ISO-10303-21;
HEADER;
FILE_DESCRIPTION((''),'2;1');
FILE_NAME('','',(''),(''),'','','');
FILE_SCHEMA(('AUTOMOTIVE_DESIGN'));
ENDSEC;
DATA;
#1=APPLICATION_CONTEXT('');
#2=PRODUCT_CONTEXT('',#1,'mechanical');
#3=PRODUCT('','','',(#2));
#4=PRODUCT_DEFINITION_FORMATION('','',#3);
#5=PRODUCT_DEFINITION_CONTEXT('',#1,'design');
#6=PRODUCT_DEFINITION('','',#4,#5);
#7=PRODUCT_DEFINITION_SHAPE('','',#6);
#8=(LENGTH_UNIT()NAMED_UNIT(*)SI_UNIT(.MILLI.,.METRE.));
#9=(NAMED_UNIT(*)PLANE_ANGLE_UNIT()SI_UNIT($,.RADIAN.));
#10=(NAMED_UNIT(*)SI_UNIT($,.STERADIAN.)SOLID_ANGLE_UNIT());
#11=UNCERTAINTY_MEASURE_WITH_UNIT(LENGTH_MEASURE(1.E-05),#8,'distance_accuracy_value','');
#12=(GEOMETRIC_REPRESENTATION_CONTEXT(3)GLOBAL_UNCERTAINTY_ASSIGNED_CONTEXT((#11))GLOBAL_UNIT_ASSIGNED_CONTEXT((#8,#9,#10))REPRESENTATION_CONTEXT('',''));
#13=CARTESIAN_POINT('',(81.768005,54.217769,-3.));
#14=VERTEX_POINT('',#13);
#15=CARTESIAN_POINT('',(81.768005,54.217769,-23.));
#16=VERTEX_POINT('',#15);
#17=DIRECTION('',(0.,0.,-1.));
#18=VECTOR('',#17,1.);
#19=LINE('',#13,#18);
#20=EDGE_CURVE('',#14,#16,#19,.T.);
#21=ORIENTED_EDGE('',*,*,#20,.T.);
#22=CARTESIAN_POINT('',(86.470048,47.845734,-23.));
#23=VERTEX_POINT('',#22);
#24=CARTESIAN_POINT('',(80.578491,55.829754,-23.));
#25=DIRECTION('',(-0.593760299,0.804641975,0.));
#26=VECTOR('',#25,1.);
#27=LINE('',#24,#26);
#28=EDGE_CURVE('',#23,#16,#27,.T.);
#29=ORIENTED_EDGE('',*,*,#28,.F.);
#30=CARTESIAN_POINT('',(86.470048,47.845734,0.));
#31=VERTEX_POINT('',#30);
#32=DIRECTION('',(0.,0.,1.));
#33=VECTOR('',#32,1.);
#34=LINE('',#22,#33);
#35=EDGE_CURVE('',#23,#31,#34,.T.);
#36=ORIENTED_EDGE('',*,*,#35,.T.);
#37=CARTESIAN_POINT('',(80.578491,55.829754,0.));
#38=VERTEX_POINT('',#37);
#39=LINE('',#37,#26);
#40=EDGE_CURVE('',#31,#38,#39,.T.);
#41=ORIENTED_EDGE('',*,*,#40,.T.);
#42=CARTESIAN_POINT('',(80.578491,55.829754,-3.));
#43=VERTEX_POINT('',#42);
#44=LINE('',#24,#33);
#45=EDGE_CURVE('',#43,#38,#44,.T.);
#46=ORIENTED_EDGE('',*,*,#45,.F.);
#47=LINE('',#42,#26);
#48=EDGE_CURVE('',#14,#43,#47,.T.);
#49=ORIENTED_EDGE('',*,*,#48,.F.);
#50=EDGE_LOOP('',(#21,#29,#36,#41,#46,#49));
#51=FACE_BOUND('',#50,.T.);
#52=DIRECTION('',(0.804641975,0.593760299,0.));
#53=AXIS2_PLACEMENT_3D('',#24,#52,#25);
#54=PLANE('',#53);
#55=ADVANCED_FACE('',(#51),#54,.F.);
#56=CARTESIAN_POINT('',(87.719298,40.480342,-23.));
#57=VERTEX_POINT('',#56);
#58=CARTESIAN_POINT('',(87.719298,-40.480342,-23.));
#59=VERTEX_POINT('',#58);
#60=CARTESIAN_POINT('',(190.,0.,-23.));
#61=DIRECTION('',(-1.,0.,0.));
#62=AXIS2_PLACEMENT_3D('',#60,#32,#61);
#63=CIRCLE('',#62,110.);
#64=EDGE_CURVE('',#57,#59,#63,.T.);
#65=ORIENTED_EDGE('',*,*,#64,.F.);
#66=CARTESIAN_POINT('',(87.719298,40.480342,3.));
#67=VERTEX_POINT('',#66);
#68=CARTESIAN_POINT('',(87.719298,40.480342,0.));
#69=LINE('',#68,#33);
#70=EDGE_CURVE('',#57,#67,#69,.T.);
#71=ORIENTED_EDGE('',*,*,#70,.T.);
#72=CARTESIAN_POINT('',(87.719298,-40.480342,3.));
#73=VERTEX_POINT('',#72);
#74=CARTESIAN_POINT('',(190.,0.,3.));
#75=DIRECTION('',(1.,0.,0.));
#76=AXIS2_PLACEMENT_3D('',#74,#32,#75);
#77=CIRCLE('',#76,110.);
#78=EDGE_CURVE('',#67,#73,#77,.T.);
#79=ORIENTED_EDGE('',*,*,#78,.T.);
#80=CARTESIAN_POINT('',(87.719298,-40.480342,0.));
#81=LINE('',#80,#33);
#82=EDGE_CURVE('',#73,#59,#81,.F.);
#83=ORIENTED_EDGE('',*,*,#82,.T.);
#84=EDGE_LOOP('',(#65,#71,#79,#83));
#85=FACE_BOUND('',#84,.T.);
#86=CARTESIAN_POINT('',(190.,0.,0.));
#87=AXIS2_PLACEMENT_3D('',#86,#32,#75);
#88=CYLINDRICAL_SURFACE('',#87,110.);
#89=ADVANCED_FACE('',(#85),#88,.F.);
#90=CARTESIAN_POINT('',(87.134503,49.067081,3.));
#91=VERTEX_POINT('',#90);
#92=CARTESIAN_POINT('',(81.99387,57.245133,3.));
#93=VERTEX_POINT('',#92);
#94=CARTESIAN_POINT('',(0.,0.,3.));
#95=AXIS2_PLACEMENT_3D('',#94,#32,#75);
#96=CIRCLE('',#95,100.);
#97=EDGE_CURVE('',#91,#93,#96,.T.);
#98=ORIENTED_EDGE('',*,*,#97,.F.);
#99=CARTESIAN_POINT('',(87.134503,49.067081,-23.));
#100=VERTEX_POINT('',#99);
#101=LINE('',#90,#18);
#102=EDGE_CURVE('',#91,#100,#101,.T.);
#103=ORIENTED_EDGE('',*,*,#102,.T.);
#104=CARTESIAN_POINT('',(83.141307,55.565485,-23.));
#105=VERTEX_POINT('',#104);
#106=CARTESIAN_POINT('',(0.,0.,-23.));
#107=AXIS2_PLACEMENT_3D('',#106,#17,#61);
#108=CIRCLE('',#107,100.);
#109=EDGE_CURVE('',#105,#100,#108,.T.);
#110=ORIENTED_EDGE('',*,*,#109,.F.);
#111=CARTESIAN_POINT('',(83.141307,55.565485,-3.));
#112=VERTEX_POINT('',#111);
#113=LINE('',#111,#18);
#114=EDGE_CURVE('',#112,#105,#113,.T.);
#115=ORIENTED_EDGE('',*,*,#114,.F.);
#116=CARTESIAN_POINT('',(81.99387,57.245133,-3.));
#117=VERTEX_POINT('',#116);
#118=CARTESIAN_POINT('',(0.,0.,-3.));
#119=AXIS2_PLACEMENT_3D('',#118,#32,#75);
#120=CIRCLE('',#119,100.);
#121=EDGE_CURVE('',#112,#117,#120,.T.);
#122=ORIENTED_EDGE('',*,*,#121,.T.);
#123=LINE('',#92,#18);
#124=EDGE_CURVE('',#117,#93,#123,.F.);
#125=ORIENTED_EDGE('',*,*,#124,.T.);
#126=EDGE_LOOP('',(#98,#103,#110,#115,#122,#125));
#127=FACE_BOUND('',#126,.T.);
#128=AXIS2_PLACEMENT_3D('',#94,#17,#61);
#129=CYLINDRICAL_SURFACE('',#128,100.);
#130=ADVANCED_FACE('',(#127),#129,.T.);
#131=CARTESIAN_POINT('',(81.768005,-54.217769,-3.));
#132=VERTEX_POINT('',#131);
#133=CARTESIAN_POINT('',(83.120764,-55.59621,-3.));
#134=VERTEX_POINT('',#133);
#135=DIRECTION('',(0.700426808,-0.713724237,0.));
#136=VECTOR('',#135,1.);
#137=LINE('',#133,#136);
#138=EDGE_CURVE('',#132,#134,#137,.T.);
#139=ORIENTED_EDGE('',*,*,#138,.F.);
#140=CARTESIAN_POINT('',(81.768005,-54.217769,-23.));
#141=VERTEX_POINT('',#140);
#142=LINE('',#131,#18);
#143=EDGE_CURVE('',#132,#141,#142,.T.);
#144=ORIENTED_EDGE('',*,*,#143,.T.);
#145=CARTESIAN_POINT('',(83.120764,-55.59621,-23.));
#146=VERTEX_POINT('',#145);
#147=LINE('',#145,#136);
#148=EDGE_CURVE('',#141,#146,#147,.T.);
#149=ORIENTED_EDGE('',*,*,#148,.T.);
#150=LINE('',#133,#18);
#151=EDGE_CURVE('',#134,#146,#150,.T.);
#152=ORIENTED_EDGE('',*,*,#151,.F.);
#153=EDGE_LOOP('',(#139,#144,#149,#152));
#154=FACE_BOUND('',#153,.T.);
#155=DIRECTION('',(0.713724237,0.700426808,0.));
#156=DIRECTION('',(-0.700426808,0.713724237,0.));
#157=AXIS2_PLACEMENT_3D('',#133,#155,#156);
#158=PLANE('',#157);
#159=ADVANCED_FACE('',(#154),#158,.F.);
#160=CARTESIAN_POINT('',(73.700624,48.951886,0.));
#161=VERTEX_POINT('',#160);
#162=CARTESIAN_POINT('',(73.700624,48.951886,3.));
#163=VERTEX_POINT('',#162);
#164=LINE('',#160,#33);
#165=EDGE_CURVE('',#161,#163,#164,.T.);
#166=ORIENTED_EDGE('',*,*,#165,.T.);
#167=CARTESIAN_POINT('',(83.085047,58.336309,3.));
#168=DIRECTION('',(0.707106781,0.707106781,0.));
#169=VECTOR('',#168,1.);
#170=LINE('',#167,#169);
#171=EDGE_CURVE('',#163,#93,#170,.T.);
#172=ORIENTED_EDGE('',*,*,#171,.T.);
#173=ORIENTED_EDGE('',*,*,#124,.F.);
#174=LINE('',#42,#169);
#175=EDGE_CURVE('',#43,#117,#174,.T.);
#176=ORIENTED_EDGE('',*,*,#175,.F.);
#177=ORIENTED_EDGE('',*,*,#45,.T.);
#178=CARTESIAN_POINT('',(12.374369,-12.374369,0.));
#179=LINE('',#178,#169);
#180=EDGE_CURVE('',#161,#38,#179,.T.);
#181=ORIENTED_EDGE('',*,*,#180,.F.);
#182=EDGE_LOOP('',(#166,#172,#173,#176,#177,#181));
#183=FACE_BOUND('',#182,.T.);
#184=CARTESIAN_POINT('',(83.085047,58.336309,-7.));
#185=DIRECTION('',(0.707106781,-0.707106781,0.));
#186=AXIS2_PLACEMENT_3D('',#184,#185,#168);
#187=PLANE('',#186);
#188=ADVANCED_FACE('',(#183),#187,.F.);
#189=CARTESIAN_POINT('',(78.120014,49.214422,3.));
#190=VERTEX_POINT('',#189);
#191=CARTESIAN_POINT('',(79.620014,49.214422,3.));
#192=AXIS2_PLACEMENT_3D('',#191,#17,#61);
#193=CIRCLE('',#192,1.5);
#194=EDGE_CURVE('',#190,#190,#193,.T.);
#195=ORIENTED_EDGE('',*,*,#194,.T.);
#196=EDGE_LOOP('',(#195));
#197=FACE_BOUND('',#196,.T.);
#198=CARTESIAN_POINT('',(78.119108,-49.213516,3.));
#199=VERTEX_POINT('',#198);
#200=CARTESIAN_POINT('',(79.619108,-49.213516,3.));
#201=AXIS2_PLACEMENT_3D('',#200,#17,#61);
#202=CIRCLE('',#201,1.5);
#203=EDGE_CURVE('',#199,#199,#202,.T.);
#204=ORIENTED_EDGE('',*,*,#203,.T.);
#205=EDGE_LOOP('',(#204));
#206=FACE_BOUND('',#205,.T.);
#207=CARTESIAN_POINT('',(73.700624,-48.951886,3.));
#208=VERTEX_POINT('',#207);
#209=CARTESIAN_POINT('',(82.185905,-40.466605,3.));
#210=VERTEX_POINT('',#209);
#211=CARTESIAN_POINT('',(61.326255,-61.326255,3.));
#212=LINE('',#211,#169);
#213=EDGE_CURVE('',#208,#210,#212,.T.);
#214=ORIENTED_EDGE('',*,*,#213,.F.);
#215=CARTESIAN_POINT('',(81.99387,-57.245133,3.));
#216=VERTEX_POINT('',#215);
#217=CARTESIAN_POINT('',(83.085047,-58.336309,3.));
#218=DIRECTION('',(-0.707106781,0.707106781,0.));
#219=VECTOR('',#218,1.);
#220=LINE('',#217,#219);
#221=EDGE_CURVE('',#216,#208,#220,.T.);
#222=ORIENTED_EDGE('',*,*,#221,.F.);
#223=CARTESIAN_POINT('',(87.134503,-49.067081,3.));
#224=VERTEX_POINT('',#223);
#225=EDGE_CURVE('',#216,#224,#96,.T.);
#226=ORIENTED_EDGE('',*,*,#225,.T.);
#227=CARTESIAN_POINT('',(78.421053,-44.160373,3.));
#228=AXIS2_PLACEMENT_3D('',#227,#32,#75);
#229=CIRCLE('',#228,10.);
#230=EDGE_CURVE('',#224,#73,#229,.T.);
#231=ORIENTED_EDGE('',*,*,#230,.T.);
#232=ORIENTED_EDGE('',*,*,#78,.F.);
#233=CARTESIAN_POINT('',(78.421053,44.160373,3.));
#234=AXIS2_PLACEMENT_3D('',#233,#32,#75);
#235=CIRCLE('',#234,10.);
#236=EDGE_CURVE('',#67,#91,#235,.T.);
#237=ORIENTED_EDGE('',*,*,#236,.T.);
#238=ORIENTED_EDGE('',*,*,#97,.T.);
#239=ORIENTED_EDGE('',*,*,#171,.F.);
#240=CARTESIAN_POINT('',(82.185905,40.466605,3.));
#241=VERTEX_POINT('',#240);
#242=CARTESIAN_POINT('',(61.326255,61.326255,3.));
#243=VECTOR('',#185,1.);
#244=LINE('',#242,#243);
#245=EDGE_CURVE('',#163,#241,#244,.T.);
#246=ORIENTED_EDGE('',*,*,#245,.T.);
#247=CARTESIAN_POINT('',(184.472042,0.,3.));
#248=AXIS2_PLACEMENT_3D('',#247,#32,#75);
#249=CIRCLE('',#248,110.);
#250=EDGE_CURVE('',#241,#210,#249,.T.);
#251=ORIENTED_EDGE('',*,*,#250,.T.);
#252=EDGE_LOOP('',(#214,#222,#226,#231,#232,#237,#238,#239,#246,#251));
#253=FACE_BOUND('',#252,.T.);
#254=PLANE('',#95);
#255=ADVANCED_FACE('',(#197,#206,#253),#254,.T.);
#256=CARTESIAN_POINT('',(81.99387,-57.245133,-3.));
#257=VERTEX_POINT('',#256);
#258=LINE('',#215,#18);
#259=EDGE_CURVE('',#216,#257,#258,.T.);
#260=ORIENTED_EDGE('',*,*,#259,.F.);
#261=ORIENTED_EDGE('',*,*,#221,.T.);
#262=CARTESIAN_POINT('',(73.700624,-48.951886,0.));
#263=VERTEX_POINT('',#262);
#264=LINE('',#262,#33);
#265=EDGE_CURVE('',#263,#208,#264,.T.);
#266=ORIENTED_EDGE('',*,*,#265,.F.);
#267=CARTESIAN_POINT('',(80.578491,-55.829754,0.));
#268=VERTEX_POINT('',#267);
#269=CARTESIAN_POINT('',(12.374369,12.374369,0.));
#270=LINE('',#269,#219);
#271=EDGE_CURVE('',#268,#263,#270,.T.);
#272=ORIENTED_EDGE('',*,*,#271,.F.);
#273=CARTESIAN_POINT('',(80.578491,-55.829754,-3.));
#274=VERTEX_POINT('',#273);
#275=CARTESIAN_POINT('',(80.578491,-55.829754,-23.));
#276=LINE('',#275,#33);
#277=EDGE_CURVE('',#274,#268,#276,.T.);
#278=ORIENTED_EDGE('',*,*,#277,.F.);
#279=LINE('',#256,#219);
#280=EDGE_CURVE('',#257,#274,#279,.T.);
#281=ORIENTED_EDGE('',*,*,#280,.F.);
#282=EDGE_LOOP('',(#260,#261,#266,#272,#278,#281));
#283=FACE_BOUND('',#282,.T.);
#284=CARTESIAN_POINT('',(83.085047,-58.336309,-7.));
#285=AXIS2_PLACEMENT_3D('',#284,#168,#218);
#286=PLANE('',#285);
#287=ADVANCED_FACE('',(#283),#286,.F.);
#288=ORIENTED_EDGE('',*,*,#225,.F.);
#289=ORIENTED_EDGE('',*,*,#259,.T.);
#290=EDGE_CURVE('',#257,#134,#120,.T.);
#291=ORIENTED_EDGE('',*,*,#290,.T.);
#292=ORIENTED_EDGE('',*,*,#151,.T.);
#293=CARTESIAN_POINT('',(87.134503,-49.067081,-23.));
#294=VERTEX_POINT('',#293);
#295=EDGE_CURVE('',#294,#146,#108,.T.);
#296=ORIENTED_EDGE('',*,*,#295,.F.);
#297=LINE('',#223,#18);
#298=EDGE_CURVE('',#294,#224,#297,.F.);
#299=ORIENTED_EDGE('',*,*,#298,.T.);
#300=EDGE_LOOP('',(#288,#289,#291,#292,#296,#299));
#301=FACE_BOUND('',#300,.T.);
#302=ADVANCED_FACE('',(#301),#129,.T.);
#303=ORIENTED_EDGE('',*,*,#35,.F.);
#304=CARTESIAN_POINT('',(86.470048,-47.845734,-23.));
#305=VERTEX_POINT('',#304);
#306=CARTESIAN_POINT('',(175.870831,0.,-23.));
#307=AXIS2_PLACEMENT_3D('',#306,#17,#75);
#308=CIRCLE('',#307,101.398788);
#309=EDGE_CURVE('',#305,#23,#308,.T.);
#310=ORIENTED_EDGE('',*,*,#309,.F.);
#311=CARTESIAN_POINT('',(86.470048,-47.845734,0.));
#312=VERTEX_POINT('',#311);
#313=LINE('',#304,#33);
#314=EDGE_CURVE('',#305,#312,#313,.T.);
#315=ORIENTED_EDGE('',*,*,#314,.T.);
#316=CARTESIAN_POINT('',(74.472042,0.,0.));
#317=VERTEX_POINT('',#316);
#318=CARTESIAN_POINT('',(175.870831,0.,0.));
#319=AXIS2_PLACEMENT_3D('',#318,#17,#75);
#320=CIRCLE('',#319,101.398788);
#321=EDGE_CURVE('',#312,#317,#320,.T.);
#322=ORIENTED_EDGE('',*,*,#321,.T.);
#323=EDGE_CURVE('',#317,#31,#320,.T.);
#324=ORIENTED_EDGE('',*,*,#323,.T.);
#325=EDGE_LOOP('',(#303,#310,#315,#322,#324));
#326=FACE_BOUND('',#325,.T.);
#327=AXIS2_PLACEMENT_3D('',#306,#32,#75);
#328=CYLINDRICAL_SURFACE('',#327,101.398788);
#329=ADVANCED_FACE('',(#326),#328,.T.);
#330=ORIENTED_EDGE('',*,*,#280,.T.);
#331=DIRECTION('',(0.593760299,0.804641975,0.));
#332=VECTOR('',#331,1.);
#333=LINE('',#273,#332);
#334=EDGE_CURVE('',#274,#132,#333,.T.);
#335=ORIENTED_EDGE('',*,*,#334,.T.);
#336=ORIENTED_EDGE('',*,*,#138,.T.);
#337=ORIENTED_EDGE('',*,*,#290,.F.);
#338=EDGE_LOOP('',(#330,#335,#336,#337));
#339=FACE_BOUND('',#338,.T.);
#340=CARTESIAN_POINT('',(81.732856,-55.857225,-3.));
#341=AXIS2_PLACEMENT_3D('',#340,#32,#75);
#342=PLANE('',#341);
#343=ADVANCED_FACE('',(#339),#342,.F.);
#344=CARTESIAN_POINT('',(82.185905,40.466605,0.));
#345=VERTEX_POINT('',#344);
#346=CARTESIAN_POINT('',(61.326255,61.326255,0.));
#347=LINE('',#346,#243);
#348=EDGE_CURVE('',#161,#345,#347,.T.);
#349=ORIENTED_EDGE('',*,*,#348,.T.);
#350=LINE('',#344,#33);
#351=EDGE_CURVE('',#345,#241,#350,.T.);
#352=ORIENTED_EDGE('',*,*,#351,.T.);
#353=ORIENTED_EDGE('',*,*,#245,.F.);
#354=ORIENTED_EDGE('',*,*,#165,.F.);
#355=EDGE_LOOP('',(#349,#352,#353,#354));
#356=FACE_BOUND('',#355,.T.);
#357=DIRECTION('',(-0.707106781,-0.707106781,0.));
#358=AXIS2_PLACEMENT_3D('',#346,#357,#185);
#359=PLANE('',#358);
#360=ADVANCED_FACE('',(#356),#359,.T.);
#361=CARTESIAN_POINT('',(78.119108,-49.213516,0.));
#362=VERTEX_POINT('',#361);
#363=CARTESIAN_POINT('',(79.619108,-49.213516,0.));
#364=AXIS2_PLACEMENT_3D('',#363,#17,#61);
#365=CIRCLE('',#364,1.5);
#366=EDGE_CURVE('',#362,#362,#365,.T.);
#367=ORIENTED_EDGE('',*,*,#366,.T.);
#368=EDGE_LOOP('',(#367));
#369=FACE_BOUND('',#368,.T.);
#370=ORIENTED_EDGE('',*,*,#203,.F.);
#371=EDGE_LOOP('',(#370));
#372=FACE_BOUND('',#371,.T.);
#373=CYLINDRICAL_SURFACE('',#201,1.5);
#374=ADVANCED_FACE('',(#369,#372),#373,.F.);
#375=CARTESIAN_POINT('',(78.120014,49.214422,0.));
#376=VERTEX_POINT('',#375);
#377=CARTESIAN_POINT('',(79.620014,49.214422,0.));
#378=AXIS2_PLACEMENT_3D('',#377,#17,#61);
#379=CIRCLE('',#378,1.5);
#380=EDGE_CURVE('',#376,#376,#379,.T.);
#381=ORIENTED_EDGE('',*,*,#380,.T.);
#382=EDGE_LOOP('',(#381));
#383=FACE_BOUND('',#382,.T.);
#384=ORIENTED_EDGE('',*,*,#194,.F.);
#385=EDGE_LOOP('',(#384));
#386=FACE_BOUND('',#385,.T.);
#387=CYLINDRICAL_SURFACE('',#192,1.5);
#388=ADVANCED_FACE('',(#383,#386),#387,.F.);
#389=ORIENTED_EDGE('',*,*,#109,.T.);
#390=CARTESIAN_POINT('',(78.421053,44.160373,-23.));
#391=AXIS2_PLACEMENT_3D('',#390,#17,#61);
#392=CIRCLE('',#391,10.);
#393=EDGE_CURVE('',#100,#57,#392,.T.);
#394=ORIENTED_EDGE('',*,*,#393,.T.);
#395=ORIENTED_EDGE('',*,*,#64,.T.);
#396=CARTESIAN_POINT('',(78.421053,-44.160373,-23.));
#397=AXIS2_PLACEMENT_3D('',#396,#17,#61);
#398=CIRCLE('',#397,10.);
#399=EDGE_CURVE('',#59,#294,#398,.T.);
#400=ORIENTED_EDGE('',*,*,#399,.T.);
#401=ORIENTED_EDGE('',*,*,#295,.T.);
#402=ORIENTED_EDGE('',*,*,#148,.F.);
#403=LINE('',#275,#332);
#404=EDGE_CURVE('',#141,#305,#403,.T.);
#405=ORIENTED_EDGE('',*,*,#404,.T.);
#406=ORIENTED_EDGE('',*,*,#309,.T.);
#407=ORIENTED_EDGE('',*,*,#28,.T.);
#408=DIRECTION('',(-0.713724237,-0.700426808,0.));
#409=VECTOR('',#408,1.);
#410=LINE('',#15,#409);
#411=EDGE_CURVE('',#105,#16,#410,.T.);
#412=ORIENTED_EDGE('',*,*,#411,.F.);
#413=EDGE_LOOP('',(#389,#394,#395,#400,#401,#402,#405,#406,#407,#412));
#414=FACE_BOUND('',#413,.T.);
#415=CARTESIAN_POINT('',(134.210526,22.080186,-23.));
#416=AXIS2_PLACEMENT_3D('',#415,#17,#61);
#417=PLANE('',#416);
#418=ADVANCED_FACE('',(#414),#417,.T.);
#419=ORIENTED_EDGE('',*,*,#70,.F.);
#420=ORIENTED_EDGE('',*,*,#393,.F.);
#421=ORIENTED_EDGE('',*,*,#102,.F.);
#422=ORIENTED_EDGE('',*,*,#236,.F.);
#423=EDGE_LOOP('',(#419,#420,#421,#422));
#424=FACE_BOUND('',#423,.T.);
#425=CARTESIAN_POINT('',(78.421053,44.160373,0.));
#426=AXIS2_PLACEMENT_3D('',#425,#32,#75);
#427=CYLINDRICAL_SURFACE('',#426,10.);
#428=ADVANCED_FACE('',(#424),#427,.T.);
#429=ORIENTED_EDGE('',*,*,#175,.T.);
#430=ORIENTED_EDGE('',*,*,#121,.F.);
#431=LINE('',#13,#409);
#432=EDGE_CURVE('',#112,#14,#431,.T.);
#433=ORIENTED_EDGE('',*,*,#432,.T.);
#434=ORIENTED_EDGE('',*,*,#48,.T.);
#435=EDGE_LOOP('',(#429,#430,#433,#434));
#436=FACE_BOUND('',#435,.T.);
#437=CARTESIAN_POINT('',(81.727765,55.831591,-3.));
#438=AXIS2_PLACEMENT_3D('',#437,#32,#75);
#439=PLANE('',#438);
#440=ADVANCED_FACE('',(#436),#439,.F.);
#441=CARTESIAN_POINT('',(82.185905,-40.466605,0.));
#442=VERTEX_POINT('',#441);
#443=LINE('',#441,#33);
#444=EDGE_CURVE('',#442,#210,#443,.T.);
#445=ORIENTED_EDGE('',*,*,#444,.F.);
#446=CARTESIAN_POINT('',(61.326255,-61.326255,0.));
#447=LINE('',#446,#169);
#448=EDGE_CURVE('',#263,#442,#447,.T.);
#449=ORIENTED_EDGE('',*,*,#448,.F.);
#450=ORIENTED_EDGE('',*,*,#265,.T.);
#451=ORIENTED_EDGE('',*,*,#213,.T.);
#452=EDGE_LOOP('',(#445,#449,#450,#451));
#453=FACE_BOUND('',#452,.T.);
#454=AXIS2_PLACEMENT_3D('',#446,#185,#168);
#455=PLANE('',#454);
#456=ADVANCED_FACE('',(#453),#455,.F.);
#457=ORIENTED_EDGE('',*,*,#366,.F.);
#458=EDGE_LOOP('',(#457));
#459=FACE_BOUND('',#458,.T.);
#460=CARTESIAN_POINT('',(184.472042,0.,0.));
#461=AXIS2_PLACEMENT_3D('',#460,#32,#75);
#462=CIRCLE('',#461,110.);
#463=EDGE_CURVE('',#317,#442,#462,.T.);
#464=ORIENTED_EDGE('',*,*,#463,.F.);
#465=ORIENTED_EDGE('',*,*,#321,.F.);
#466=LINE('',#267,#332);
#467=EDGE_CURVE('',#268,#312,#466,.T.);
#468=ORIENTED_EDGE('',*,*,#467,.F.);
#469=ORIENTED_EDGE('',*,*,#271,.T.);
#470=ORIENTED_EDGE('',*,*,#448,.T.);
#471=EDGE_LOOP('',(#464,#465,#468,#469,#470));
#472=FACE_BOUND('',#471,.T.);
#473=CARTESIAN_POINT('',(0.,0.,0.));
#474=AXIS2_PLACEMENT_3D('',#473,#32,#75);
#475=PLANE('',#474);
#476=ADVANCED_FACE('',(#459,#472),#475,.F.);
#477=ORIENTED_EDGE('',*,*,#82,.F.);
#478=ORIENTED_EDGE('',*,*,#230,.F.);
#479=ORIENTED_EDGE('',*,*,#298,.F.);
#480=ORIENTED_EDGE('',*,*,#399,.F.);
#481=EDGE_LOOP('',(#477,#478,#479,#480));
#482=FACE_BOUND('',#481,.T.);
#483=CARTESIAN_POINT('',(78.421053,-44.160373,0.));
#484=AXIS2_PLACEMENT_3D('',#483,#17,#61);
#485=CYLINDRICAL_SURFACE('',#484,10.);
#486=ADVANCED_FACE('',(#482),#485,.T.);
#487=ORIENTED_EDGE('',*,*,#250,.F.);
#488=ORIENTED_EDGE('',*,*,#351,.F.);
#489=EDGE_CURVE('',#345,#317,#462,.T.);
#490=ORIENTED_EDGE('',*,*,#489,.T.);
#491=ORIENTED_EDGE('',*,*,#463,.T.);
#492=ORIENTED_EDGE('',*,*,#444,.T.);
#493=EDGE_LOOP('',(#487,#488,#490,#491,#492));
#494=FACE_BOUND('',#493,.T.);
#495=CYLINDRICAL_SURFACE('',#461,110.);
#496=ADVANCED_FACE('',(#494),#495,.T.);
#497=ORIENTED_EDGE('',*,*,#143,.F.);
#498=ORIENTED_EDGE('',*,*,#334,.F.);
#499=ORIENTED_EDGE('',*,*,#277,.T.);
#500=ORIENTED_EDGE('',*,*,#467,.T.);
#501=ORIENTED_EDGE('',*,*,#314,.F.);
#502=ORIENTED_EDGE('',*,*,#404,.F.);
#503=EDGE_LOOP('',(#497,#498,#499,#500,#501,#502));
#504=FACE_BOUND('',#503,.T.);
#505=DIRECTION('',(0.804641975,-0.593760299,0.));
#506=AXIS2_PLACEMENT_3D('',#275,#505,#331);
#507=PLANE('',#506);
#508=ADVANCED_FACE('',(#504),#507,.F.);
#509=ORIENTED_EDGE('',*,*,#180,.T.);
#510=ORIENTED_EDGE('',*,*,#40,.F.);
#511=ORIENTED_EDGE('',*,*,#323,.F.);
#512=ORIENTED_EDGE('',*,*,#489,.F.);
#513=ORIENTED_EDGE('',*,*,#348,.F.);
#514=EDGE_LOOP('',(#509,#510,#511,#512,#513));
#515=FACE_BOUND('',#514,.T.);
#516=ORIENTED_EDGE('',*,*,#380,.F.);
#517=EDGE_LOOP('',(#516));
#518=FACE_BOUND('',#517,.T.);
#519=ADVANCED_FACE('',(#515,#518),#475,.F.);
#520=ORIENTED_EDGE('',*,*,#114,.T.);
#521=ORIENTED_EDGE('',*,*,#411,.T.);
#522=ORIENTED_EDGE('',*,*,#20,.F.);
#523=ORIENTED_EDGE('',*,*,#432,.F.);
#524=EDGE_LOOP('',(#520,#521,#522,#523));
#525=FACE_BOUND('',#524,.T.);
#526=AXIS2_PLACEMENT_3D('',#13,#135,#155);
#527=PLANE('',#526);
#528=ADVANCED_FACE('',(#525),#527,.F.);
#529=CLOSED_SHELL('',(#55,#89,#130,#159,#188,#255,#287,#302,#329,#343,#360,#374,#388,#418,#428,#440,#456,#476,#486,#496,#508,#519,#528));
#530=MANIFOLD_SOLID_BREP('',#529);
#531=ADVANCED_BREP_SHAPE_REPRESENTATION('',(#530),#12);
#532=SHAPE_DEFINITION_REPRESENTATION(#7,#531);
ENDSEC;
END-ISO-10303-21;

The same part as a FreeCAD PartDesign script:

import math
import FreeCAD as App
import Part
import Sketcher
from FreeCAD import Vector


def edges_at(feature, points):
    """Names of the edges that pass closest to the given points."""
    edges = feature.Shape.Edges
    near = lambda p: min(range(len(edges)), key=lambda i: edges[i].distToShape(Part.Vertex(*p))[0])
    return sorted({f"Edge{near(p) + 1}" for p in points})

doc = App.newDocument("Part")
body = doc.addObject("PartDesign::Body", "Body")

# Sketch on XY plane
sketch1 = body.newObject("Sketcher::SketchObject", "Sketch")
sketch1.AttachmentSupport = (doc.getObject("XY_Plane"), [""])
sketch1.MapMode = "FlatFace"
sketch1.addGeometry(Part.Circle(Vector(0, 0, 0), Vector(0, 0, 1), 100), False)
sketch1.addConstraint([
    Sketcher.Constraint("Coincident", 0, 3, -1, 1),
    Sketcher.Constraint("Diameter", 0, 200.0),
])
pad1 = body.newObject("PartDesign::Pad", "Pad")
pad1.Profile = sketch1
pad1.Length = 3

# Sketch on XY plane
sketch2 = body.newObject("Sketcher::SketchObject", "Sketch001")
sketch2.AttachmentSupport = (doc.getObject("XY_Plane"), [""])
sketch2.MapMode = "FlatFace"
sketch2.AttachmentOffset = App.Placement(Vector(0, 0, 3), App.Rotation())
sketch2.addGeometry(Part.Circle(Vector(190, 0, 0), Vector(0, 0, 1), 110), False)
sketch2.addConstraint([
    Sketcher.Constraint("PointOnObject", 0, 3, -1),
    Sketcher.Constraint("Diameter", 0, 220.0),
    Sketcher.Constraint("DistanceX", -1, 1, 0, 3, 190.0),
])
pocket1 = body.newObject("PartDesign::Pocket", "Pocket")
pocket1.Profile = sketch2
pocket1.Length = 3
doc.recompute()

fillet = body.newObject("PartDesign::Fillet", "Fillet")
fillet.Base = (pocket1, edges_at(pocket1, [(89.474, -44.659, 1.5), (89.474, 44.659, 1.5)]))
fillet.Radius = 10

# Sketch on XY plane
sketch3 = body.newObject("Sketcher::SketchObject", "Sketch002")
sketch3.AttachmentSupport = (doc.getObject("XY_Plane"), [""])
sketch3.MapMode = "FlatFace"
sketch3.AttachmentOffset = App.Placement(Vector(0, 0, 3), App.Rotation())
sketch3.addGeometry([
    Part.LineSegment(Vector(-83, -58, 0), Vector(-58, -83, 0)),  # 0
    Part.LineSegment(Vector(-58, -83, 0), Vector(-41, -65, 0)),  # 1
    Part.LineSegment(Vector(-41, -65, 0), Vector(-65, -41, 0)),  # 2
    Part.LineSegment(Vector(-65, -41, 0), Vector(-83, -58, 0)),  # 3
    Part.LineSegment(Vector(-58, 83, 0), Vector(-83, 58, 0)),  # 4
    Part.LineSegment(Vector(-83, 58, 0), Vector(-65, 41, 0)),  # 5
    Part.LineSegment(Vector(-65, 41, 0), Vector(-41, 65, 0)),  # 6
    Part.LineSegment(Vector(-41, 65, 0), Vector(-58, 83, 0)),  # 7
    Part.LineSegment(Vector(58, -83, 0), Vector(83, -58, 0)),  # 8
    Part.LineSegment(Vector(83, -58, 0), Vector(65, -41, 0)),  # 9
    Part.LineSegment(Vector(65, -41, 0), Vector(41, -65, 0)),  # 10
    Part.LineSegment(Vector(41, -65, 0), Vector(58, -83, 0)),  # 11
    Part.LineSegment(Vector(83, 58, 0), Vector(58, 83, 0)),  # 12
    Part.LineSegment(Vector(58, 83, 0), Vector(41, 65, 0)),  # 13
    Part.LineSegment(Vector(41, 65, 0), Vector(65, 41, 0)),  # 14
    Part.LineSegment(Vector(65, 41, 0), Vector(83, 58, 0)),  # 15
], False)
sketch3.addConstraint([
    Sketcher.Constraint("Coincident", 0, 2, 1, 1),
    Sketcher.Constraint("Coincident", 1, 2, 2, 1),
    Sketcher.Constraint("Coincident", 2, 2, 3, 1),
    Sketcher.Constraint("Coincident", 3, 2, 0, 1),
    Sketcher.Constraint("Coincident", 4, 2, 5, 1),
    Sketcher.Constraint("Coincident", 5, 2, 6, 1),
    Sketcher.Constraint("Coincident", 6, 2, 7, 1),
    Sketcher.Constraint("Coincident", 7, 2, 4, 1),
    Sketcher.Constraint("Coincident", 8, 2, 9, 1),
    Sketcher.Constraint("Coincident", 9, 2, 10, 1),
    Sketcher.Constraint("Coincident", 10, 2, 11, 1),
    Sketcher.Constraint("Coincident", 11, 2, 8, 1),
    Sketcher.Constraint("Coincident", 12, 2, 13, 1),
    Sketcher.Constraint("Coincident", 13, 2, 14, 1),
    Sketcher.Constraint("Coincident", 14, 2, 15, 1),
    Sketcher.Constraint("Coincident", 15, 2, 12, 1),
    Sketcher.Constraint("Symmetric", 4, 2, 8, 2, -1, 1),
    Sketcher.Constraint("Symmetric", 5, 2, 9, 2, -1, 1),
    Sketcher.Constraint("Symmetric", 6, 2, 10, 2, -1, 1),
    Sketcher.Constraint("Symmetric", 7, 2, 11, 2, -1, 1),
    Sketcher.Constraint("Symmetric", 0, 2, 12, 2, -1, 1),
    Sketcher.Constraint("Symmetric", 1, 2, 13, 2, -1, 1),
    Sketcher.Constraint("Symmetric", 2, 2, 14, 2, -1, 1),
    Sketcher.Constraint("Symmetric", 3, 2, 15, 2, -1, 1),
    Sketcher.Constraint("Symmetric", 3, 2, 8, 2, -2),
    Sketcher.Constraint("Symmetric", 2, 2, 9, 2, -2),
    Sketcher.Constraint("Symmetric", 1, 2, 10, 2, -2),
    Sketcher.Constraint("Symmetric", 0, 2, 11, 2, -2),
    Sketcher.Constraint("Perpendicular", 0, 1),
    Sketcher.Constraint("Perpendicular", 1, 2),
    Sketcher.Constraint("Perpendicular", 2, 3),
    Sketcher.Constraint("Parallel", 3, 4),
    Sketcher.Constraint("Distance", 0, 35.0),
    Sketcher.Constraint("Distance", 1, 25.0),
    Sketcher.Constraint("DistanceX", 0, 2, -1, 1, 58.336309),
    Sketcher.Constraint("DistanceY", 2, 2, -1, 1, 40.65864),
])
pocket2 = body.newObject("PartDesign::Pocket", "Pocket001")
pocket2.Profile = sketch3
pocket2.Length = 10

# Sketch on XY plane
sketch4 = body.newObject("Sketcher::SketchObject", "Sketch003")
sketch4.AttachmentSupport = (doc.getObject("XY_Plane"), [""])
sketch4.MapMode = "FlatFace"
sketch4.AttachmentOffset = App.Placement(Vector(0, 0, 3), App.Rotation())
sketch4.addGeometry([
    Part.Circle(Vector(-63.6, -36.8, 0), Vector(0, 0, 1), 1.5),  # 0
    Part.Circle(Vector(-36.8, -63.6, 0), Vector(0, 0, 1), 1.5),  # 1
    Part.Circle(Vector(-47.7, -20.9, 0), Vector(0, 0, 1), 1.5),  # 2
    Part.Circle(Vector(-20.9, -47.7, 0), Vector(0, 0, 1), 1.5),  # 3
    Part.Circle(Vector(47.7, 20.9, 0), Vector(0, 0, 1), 1.5),  # 4
    Part.Circle(Vector(20.9, 47.7, 0), Vector(0, 0, 1), 1.5),  # 5
    Part.Circle(Vector(63.6, 36.8, 0), Vector(0, 0, 1), 1.5),  # 6
    Part.Circle(Vector(36.8, 63.6, 0), Vector(0, 0, 1), 1.5),  # 7
    Part.Circle(Vector(20.9, -47.7, 0), Vector(0, 0, 1), 1.5),  # 8
    Part.Circle(Vector(47.7, -20.9, 0), Vector(0, 0, 1), 1.5),  # 9
    Part.Circle(Vector(63.6, -36.8, 0), Vector(0, 0, 1), 1.5),  # 10
    Part.Circle(Vector(36.8, -63.6, 0), Vector(0, 0, 1), 1.5),  # 11
    Part.Circle(Vector(-63.6, 36.8, 0), Vector(0, 0, 1), 1.5),  # 12
    Part.Circle(Vector(-36.8, 63.6, 0), Vector(0, 0, 1), 1.5),  # 13
    Part.Circle(Vector(-20.9, 47.7, 0), Vector(0, 0, 1), 1.5),  # 14
    Part.Circle(Vector(-47.7, 20.9, 0), Vector(0, 0, 1), 1.5),  # 15
], False)
sketch4.addConstraint([
    Sketcher.Constraint("Equal", 0, 1),
    Sketcher.Constraint("Equal", 1, 2),
    Sketcher.Constraint("Equal", 2, 3),
    Sketcher.Constraint("Equal", 3, 4),
    Sketcher.Constraint("Equal", 4, 5),
    Sketcher.Constraint("Equal", 5, 6),
    Sketcher.Constraint("Equal", 6, 7),
    Sketcher.Constraint("Equal", 7, 8),
    Sketcher.Constraint("Equal", 8, 9),
    Sketcher.Constraint("Equal", 9, 10),
    Sketcher.Constraint("Equal", 10, 11),
    Sketcher.Constraint("Equal", 11, 12),
    Sketcher.Constraint("Equal", 12, 13),
    Sketcher.Constraint("Equal", 13, 14),
    Sketcher.Constraint("Equal", 14, 15),
    Sketcher.Constraint("Symmetric", 2, 3, 4, 3, -1, 1),
    Sketcher.Constraint("Symmetric", 3, 3, 5, 3, -1, 1),
    Sketcher.Constraint("Symmetric", 0, 3, 6, 3, -1, 1),
    Sketcher.Constraint("Symmetric", 1, 3, 7, 3, -1, 1),
    Sketcher.Constraint("Symmetric", 10, 3, 12, 3, -1, 1),
    Sketcher.Constraint("Symmetric", 11, 3, 13, 3, -1, 1),
    Sketcher.Constraint("Symmetric", 8, 3, 14, 3, -1, 1),
    Sketcher.Constraint("Symmetric", 9, 3, 15, 3, -1, 1),
    Sketcher.Constraint("Symmetric", 3, 3, 8, 3, -2),
    Sketcher.Constraint("Symmetric", 2, 3, 9, 3, -2),
    Sketcher.Constraint("Symmetric", 0, 3, 10, 3, -2),
    Sketcher.Constraint("Symmetric", 1, 3, 11, 3, -2),
    Sketcher.Constraint("Diameter", 0, 3.0),
    Sketcher.Constraint("DistanceY", 0, 3, -1, 1, 36.804908),
    Sketcher.Constraint("DistanceX", 2, 3, -1, 1, 47.666068),
    Sketcher.Constraint("DistanceY", 2, 3, -1, 1, 20.866721),
    Sketcher.Constraint("DistanceX", 3, 3, -1, 1, 20.866721),
    Sketcher.Constraint("DistanceY", 3, 3, -1, 1, 47.666068),
    Sketcher.Constraint("DistanceX", -1, 1, 7, 3, 36.804908),
    Sketcher.Constraint("DistanceX", 0, 3, -1, 1, 63.604255),
    Sketcher.Constraint("DistanceY", 1, 3, -1, 1, 63.604255),
])
pocket3 = body.newObject("PartDesign::Pocket", "Pocket002")
pocket3.Profile = sketch4
pocket3.Type = "ThroughAll"

# Sketch on XY plane
sketch5 = body.newObject("Sketcher::SketchObject", "Sketch004")
sketch5.AttachmentSupport = (doc.getObject("XY_Plane"), [""])
sketch5.MapMode = "FlatFace"
sketch5.AttachmentOffset = App.Placement(Vector(0, 0, 3), App.Rotation())
sketch5.addGeometry([
    Part.Circle(Vector(71.9, -4, 0), Vector(0, 0, 1), 1.5),  # 0
    Part.Circle(Vector(36, 4, 0), Vector(0, 0, 1), 1.5),  # 1
    Part.Circle(Vector(72, 4, 0), Vector(0, 0, 1), 1.5),  # 2
    Part.Circle(Vector(35.9, -4, 0), Vector(0, 0, 1), 1.5),  # 3
    Part.Circle(Vector(-91.2, 4, 0), Vector(0, 0, 1), 1.5),  # 4
    Part.Circle(Vector(-91.2, -4, 0), Vector(0, 0, 1), 1.5),  # 5
    Part.Circle(Vector(-55.2, 4, 0), Vector(0, 0, 1), 1.5),  # 6
    Part.Circle(Vector(-55.2, -4, 0), Vector(0, 0, 1), 1.5),  # 7
    Part.Circle(Vector(-4, 85, 0), Vector(0, 0, 1), 1.5),  # 8
    Part.Circle(Vector(4, 85, 0), Vector(0, 0, 1), 1.5),  # 9
    Part.Circle(Vector(-4, 49, 0), Vector(0, 0, 1), 1.5),  # 10
    Part.Circle(Vector(4, 49, 0), Vector(0, 0, 1), 1.5),  # 11
    Part.Circle(Vector(-4, -49, 0), Vector(0, 0, 1), 1.5),  # 12
    Part.Circle(Vector(4, -49, 0), Vector(0, 0, 1), 1.5),  # 13
    Part.Circle(Vector(4, -85, 0), Vector(0, 0, 1), 1.5),  # 14
    Part.Circle(Vector(-4, -85, 0), Vector(0, 0, 1), 1.5),  # 15
    Part.LineSegment(Vector(39, 4, 0), Vector(39, -4, 0)),  # 16
    Part.LineSegment(Vector(39, -4, 0), Vector(43.5, -4, 0)),  # 17
    Part.LineSegment(Vector(43.5, -4, 0), Vector(43.5, 4, 0)),  # 18
    Part.LineSegment(Vector(43.5, 4, 0), Vector(39, 4, 0)),  # 19
    Part.LineSegment(Vector(-4, -52, 0), Vector(-4, -56.5, 0)),  # 20
    Part.LineSegment(Vector(-4, -56.5, 0), Vector(4, -56.5, 0)),  # 21
    Part.LineSegment(Vector(4, -56.5, 0), Vector(4, -52, 0)),  # 22
    Part.LineSegment(Vector(4, -52, 0), Vector(-4, -52, 0)),  # 23
    Part.LineSegment(Vector(-62.7, 4, 0), Vector(-62.7, -4, 0)),  # 24
    Part.LineSegment(Vector(-62.7, -4, 0), Vector(-58.2, -4, 0)),  # 25
    Part.LineSegment(Vector(-58.2, -4, 0), Vector(-58.2, 4, 0)),  # 26
    Part.LineSegment(Vector(-58.2, 4, 0), Vector(-62.7, 4, 0)),  # 27
    Part.LineSegment(Vector(-4, 56.5, 0), Vector(-4, 52, 0)),  # 28
    Part.LineSegment(Vector(-4, 52, 0), Vector(4, 52, 0)),  # 29
    Part.LineSegment(Vector(4, 52, 0), Vector(4, 56.5, 0)),  # 30
    Part.LineSegment(Vector(4, 56.5, 0), Vector(-4, 56.5, 0)),  # 31
], False)
sketch5.addConstraint([
    Sketcher.Constraint("Coincident", 16, 2, 17, 1),
    Sketcher.Constraint("Coincident", 17, 2, 18, 1),
    Sketcher.Constraint("Coincident", 18, 2, 19, 1),
    Sketcher.Constraint("Coincident", 19, 2, 16, 1),
    Sketcher.Constraint("Coincident", 20, 2, 21, 1),
    Sketcher.Constraint("Coincident", 21, 2, 22, 1),
    Sketcher.Constraint("Coincident", 22, 2, 23, 1),
    Sketcher.Constraint("Coincident", 23, 2, 20, 1),
    Sketcher.Constraint("Coincident", 24, 2, 25, 1),
    Sketcher.Constraint("Coincident", 25, 2, 26, 1),
    Sketcher.Constraint("Coincident", 26, 2, 27, 1),
    Sketcher.Constraint("Coincident", 27, 2, 24, 1),
    Sketcher.Constraint("Coincident", 28, 2, 29, 1),
    Sketcher.Constraint("Coincident", 29, 2, 30, 1),
    Sketcher.Constraint("Coincident", 30, 2, 31, 1),
    Sketcher.Constraint("Coincident", 31, 2, 28, 1),
    Sketcher.Constraint("Vertical", 16),
    Sketcher.Constraint("Horizontal", 17),
    Sketcher.Constraint("Vertical", 18),
    Sketcher.Constraint("Horizontal", 19),
    Sketcher.Constraint("Vertical", 20),
    Sketcher.Constraint("Horizontal", 21),
    Sketcher.Constraint("Vertical", 22),
    Sketcher.Constraint("Horizontal", 23),
    Sketcher.Constraint("Vertical", 24),
    Sketcher.Constraint("Horizontal", 25),
    Sketcher.Constraint("Vertical", 26),
    Sketcher.Constraint("Horizontal", 27),
    Sketcher.Constraint("Vertical", 28),
    Sketcher.Constraint("Horizontal", 29),
    Sketcher.Constraint("Vertical", 30),
    Sketcher.Constraint("Horizontal", 31),
    Sketcher.Constraint("Equal", 0, 1),
    Sketcher.Constraint("Equal", 1, 2),
    Sketcher.Constraint("Equal", 2, 3),
    Sketcher.Constraint("Equal", 3, 4),
    Sketcher.Constraint("Equal", 4, 5),
    Sketcher.Constraint("Equal", 5, 6),
    Sketcher.Constraint("Equal", 6, 7),
    Sketcher.Constraint("Equal", 7, 8),
    Sketcher.Constraint("Equal", 8, 9),
    Sketcher.Constraint("Equal", 9, 10),
    Sketcher.Constraint("Equal", 10, 11),
    Sketcher.Constraint("Equal", 11, 12),
    Sketcher.Constraint("Equal", 12, 13),
    Sketcher.Constraint("Equal", 13, 14),
    Sketcher.Constraint("Equal", 14, 15),
    Sketcher.Constraint("Symmetric", 11, 3, 12, 3, -1, 1),
    Sketcher.Constraint("Symmetric", 10, 3, 13, 3, -1, 1),
    Sketcher.Constraint("Symmetric", 8, 3, 14, 3, -1, 1),
    Sketcher.Constraint("Symmetric", 9, 3, 15, 3, -1, 1),
    Sketcher.Constraint("Symmetric", 22, 2, 28, 2, -1, 1),
    Sketcher.Constraint("Symmetric", 20, 2, 30, 2, -1, 1),
    Sketcher.Constraint("Symmetric", 8, 3, 9, 3, -2),
    Sketcher.Constraint("Symmetric", 10, 3, 11, 3, -2),
    Sketcher.Constraint("Symmetric", 4, 3, 5, 3, -1),
    Sketcher.Constraint("Symmetric", 6, 3, 7, 3, -1),
    Sketcher.Constraint("Horizontal", 1, 3, 2, 3),
    Sketcher.Constraint("Horizontal", 0, 3, 3, 3),
    Sketcher.Constraint("Horizontal", 2, 3, 4, 3),
    Sketcher.Constraint("Horizontal", 3, 3, 5, 3),
    Sketcher.Constraint("Horizontal", 4, 3, 6, 3),
    Sketcher.Constraint("Horizontal", 7, 3, 16, 2),
    Sketcher.Constraint("Horizontal", 6, 3, 18, 2),
    Sketcher.Constraint("Horizontal", 17, 2, 24, 2),
    Sketcher.Constraint("Horizontal", 19, 2, 26, 2),
    Sketcher.Constraint("Vertical", 8, 3, 10, 3),
    Sketcher.Constraint("Vertical", 15, 3, 20, 2),
    Sketcher.Constraint("Vertical", 14, 3, 21, 2),
    Sketcher.Constraint("Equal", 19, 25),
    Sketcher.Constraint("Equal", 31, 16),
    Sketcher.Constraint("Equal", 27, 20),
    Sketcher.Constraint("Diameter", 0, 3.0),
    Sketcher.Constraint("DistanceX", 21, 1, 21, 2, 8.0),
    Sketcher.Constraint("DistanceX", 17, 1, 17, 2, 4.5),
    Sketcher.Constraint("DistanceY", -1, 1, 8, 3, 85.0),
    Sketcher.Constraint("DistanceY", -1, 1, 10, 3, 49.0),
    Sketcher.Constraint("DistanceY", 22, 2, -1, 1, 52.0),
    Sketcher.Constraint("DistanceX", 1, 3, 2, 3, 36.0),
    Sketcher.Constraint("DistanceX", 3, 3, 0, 3, 36.0),
    Sketcher.Constraint("DistanceX", 4, 3, 6, 3, 36.0),
    Sketcher.Constraint("DistanceX", 1, 3, 16, 2, 3.0),
    Sketcher.Constraint("DistanceX", 25, 2, 7, 3, 3.0),
    Sketcher.Constraint("DistanceX", -1, 1, 0, 3, 71.9),
    Sketcher.Constraint("DistanceX", 4, 3, 1, 3, 127.149218),
    Sketcher.Constraint("DistanceX", -1, 1, 1, 3, 35.959143),
])
pocket4 = body.newObject("PartDesign::Pocket", "Pocket003")
pocket4.Profile = sketch5
pocket4.Length = 10

# Sketch on XY plane
sketch6 = body.newObject("Sketcher::SketchObject", "Sketch005")
sketch6.AttachmentSupport = (doc.getObject("XY_Plane"), [""])
sketch6.MapMode = "FlatFace"
sketch6.AttachmentOffset = App.Placement(Vector(0, 0, 3), App.Rotation())
sketch6.addGeometry([
    Part.ArcOfCircle(Part.Circle(Vector(184, 0, 0), Vector(0, 0, 1), 110), math.radians(158), math.radians(202)),  # 0
    Part.LineSegment(Vector(82, 40, 0), Vector(74, 49, 0)),  # 1
    Part.LineSegment(Vector(74, 49, 0), Vector(65, 41, 0)),  # 2
    Part.LineSegment(Vector(65, 41, 0), Vector(41, 65, 0)),  # 3
    Part.LineSegment(Vector(41, 65, 0), Vector(57, 82, 0)),  # 4
    Part.ArcOfCircle(Part.Circle(Vector(0, 0, 0), Vector(0, 0, 1), 100), math.radians(55), math.radians(125)),  # 5
    Part.LineSegment(Vector(-57, 82, 0), Vector(-41, 65, 0)),  # 6
    Part.LineSegment(Vector(-41, 65, 0), Vector(-65, 41, 0)),  # 7
    Part.LineSegment(Vector(-65, 41, 0), Vector(-82, 57, 0)),  # 8
    Part.ArcOfCircle(Part.Circle(Vector(0, 0, 0), Vector(0, 0, 1), 100), math.radians(145), math.radians(215)),  # 9
    Part.LineSegment(Vector(-82, -57, 0), Vector(-65, -41, 0)),  # 10
    Part.LineSegment(Vector(-65, -41, 0), Vector(-41, -65, 0)),  # 11
    Part.LineSegment(Vector(-41, -65, 0), Vector(-57, -82, 0)),  # 12
    Part.ArcOfCircle(Part.Circle(Vector(0, 0, 0), Vector(0, 0, 1), 100), math.radians(-125), math.radians(-55)),  # 13
    Part.LineSegment(Vector(57, -82, 0), Vector(41, -65, 0)),  # 14
    Part.LineSegment(Vector(41, -65, 0), Vector(65, -41, 0)),  # 15
    Part.LineSegment(Vector(65, -41, 0), Vector(74, -49, 0)),  # 16
    Part.LineSegment(Vector(74, -49, 0), Vector(82, -40, 0)),  # 17
], False)
sketch6.addConstraint([
    Sketcher.Constraint("Coincident", 0, 1, 1, 1),
    Sketcher.Constraint("Coincident", 1, 2, 2, 1),
    Sketcher.Constraint("Coincident", 2, 2, 3, 1),
    Sketcher.Constraint("Coincident", 3, 2, 4, 1),
    Sketcher.Constraint("Coincident", 4, 2, 5, 1),
    Sketcher.Constraint("Coincident", 5, 2, 6, 1),
    Sketcher.Constraint("Coincident", 6, 2, 7, 1),
    Sketcher.Constraint("Coincident", 7, 2, 8, 1),
    Sketcher.Constraint("Coincident", 8, 2, 9, 1),
    Sketcher.Constraint("Coincident", 9, 2, 10, 1),
    Sketcher.Constraint("Coincident", 10, 2, 11, 1),
    Sketcher.Constraint("Coincident", 11, 2, 12, 1),
    Sketcher.Constraint("Coincident", 12, 2, 13, 1),
    Sketcher.Constraint("Coincident", 13, 2, 14, 1),
    Sketcher.Constraint("Coincident", 14, 2, 15, 1),
    Sketcher.Constraint("Coincident", 15, 2, 16, 1),
    Sketcher.Constraint("Coincident", 16, 2, 17, 1),
    Sketcher.Constraint("Coincident", 17, 2, 0, 2),
    Sketcher.Constraint("Coincident", 5, 3, -1, 1),
    Sketcher.Constraint("Coincident", 9, 3, -1, 1),
    Sketcher.Constraint("Coincident", 13, 3, -1, 1),
    Sketcher.Constraint("Equal", 5, 9),
    Sketcher.Constraint("Equal", 9, 13),
    Sketcher.Constraint("Symmetric", 2, 2, 10, 2, -1, 1),
    Sketcher.Constraint("Symmetric", 3, 2, 11, 2, -1, 1),
    Sketcher.Constraint("Symmetric", 6, 2, 14, 2, -1, 1),
    Sketcher.Constraint("Symmetric", 7, 2, 15, 2, -1, 1),
    Sketcher.Constraint("Symmetric", 3, 2, 6, 2, -2),
    Sketcher.Constraint("Symmetric", 2, 2, 7, 2, -2),
    Sketcher.Constraint("Symmetric", 1, 2, 16, 2, -1),
    Sketcher.Constraint("Symmetric", 0, 1, 17, 2, -1),
    Sketcher.Constraint("Perpendicular", 1, 2),
    Sketcher.Constraint("Perpendicular", 2, 3),
    Sketcher.Constraint("Perpendicular", 3, 4),
    Sketcher.Constraint("Perpendicular", 4, 6),
    Sketcher.Constraint("Perpendicular", 6, 7),
    Sketcher.Constraint("Perpendicular", 7, 8),
    Sketcher.Constraint("Perpendicular", 8, 10),
    Sketcher.Constraint("Perpendicular", 11, 12),
    Sketcher.Constraint("Perpendicular", 12, 14),
    Sketcher.Constraint("Equal", 6, 8),
    Sketcher.Constraint("Radius", 0, 110.0),
    Sketcher.Constraint("Radius", 5, 100.0),
    Sketcher.Constraint("Distance", 1, 12.0),
    Sketcher.Constraint("Distance", 3, 35.0),
    Sketcher.Constraint("Distance", 2, 11.728422),
    Sketcher.Constraint("DistanceY", -1, 1, 2, 2, 40.65864),
])
pocket5 = body.newObject("PartDesign::Pocket", "Pocket004")
pocket5.Profile = sketch6
pocket5.Type = "ThroughAll"

# Sketch on XY plane
sketch7 = body.newObject("Sketcher::SketchObject", "Sketch006")
sketch7.AttachmentSupport = (doc.getObject("XY_Plane"), [""])
sketch7.MapMode = "FlatFace"
sketch7.addGeometry([
    Part.Circle(Vector(79.6, -49.2, 0), Vector(0, 0, 1), 1.5),
    Part.Circle(Vector(79.6, 49.2, 0), Vector(0, 0, 1), 1.5),
], False)
sketch7.addConstraint([
    Sketcher.Constraint("Equal", 0, 1),
    Sketcher.Constraint("Diameter", 0, 3.0),
    Sketcher.Constraint("DistanceY", 0, 3, 1, 3, 98.427938),
    Sketcher.Constraint("DistanceX", -1, 1, 0, 3, 79.619108),
    Sketcher.Constraint("DistanceY", 0, 3, -1, 1, 49.213516),
    Sketcher.Constraint("DistanceX", -1, 1, 1, 3, 79.620014),
])
pocket6 = body.newObject("PartDesign::Pocket", "Pocket005")
pocket6.Profile = sketch7
pocket6.Type = "ThroughAll"
pocket6.Reversed = True

# Sketch on XY plane
sketch8 = body.newObject("Sketcher::SketchObject", "Sketch007")
sketch8.AttachmentSupport = (doc.getObject("XY_Plane"), [""])
sketch8.MapMode = "FlatFace"
sketch8.addGeometry([
    Part.ArcOfCircle(Part.Circle(Vector(176, 0, 0), Vector(0, 0, 1), 101), math.radians(151), math.radians(209)),
    Part.ArcOfCircle(Part.Circle(Vector(78, 44, 0), Vector(0, 0, 1), 10), math.radians(-22), math.radians(29)),
    Part.ArcOfCircle(Part.Circle(Vector(190, 0, 0), Vector(0, 0, 1), 110), math.radians(158), math.radians(202)),
    Part.ArcOfCircle(Part.Circle(Vector(78, -44, 0), Vector(0, 0, 1), 10), math.radians(-29), math.radians(22)),
], False)
sketch8.addConstraint([
    Sketcher.Constraint("Coincident", 0, 1, 1, 2),
    Sketcher.Constraint("Tangent", 1, 1, 2, 1),
    Sketcher.Constraint("Tangent", 2, 2, 3, 2),
    Sketcher.Constraint("Coincident", 3, 1, 0, 2),
    Sketcher.Constraint("Equal", 1, 3),
    Sketcher.Constraint("Symmetric", 1, 3, 3, 3, -1),
    Sketcher.Constraint("PointOnObject", 0, 3, -1),
    Sketcher.Constraint("Radius", 1, 10.0),
    Sketcher.Constraint("Radius", 2, 110.0),
    Sketcher.Constraint("DistanceX", -1, 1, 2, 3, 190.0),
    Sketcher.Constraint("Radius", 0, 101.398788),
    Sketcher.Constraint("DistanceX", -1, 1, 1, 1, 87.719298),
    Sketcher.Constraint("DistanceX", -1, 1, 0, 3, 175.870831),
])
pad2 = body.newObject("PartDesign::Pad", "Pad001")
pad2.Profile = sketch8
pad2.Length = 23
pad2.Reversed = True

# Sketch on XY plane
sketch9 = body.newObject("Sketcher::SketchObject", "Sketch008")
sketch9.AttachmentSupport = (doc.getObject("XY_Plane"), [""])
sketch9.MapMode = "FlatFace"
sketch9.AttachmentOffset = App.Placement(Vector(0, 0, -23), App.Rotation())
sketch9.addGeometry([
    Part.LineSegment(Vector(82, -57.2, 0), Vector(80.6, -55.8, 0)),  # 0
    Part.LineSegment(Vector(80.6, -55.8, 0), Vector(86.5, -47.8, 0)),  # 1
    Part.LineSegment(Vector(86.5, -47.8, 0), Vector(87.1, -49.1, 0)),  # 2
    Part.ArcOfCircle(Part.Circle(Vector(0, 0, 0), Vector(0, 0, 1), 100), math.radians(-34.92), math.radians(-29.38)),  # 3
    Part.LineSegment(Vector(80.6, 55.8, 0), Vector(82, 57.2, 0)),  # 4
    Part.ArcOfCircle(Part.Circle(Vector(0, 0, 0), Vector(0, 0, 1), 100), math.radians(29.38), math.radians(34.92)),  # 5
    Part.LineSegment(Vector(87.1, 49.1, 0), Vector(86.5, 47.8, 0)),  # 6
    Part.LineSegment(Vector(86.5, 47.8, 0), Vector(80.6, 55.8, 0)),  # 7
], False)
sketch9.addConstraint([
    Sketcher.Constraint("Coincident", 0, 2, 1, 1),
    Sketcher.Constraint("Coincident", 1, 2, 2, 1),
    Sketcher.Constraint("Coincident", 2, 2, 3, 2),
    Sketcher.Constraint("Coincident", 3, 1, 0, 1),
    Sketcher.Constraint("Coincident", 4, 2, 5, 2),
    Sketcher.Constraint("Coincident", 5, 1, 6, 1),
    Sketcher.Constraint("Coincident", 6, 2, 7, 1),
    Sketcher.Constraint("Coincident", 7, 2, 4, 1),
    Sketcher.Constraint("Coincident", 3, 3, -1, 1),
    Sketcher.Constraint("Coincident", 5, 3, -1, 1),
    Sketcher.Constraint("Equal", 3, 5),
    Sketcher.Constraint("Symmetric", 1, 2, 6, 2, -1),
    Sketcher.Constraint("Symmetric", 0, 2, 7, 2, -1),
    Sketcher.Constraint("Perpendicular", 0, 4),
    Sketcher.Constraint("Vertical", 3, 1, 4, 2),
    Sketcher.Constraint("Vertical", 2, 2, 5, 1),
    Sketcher.Constraint("Radius", 3, 100.0),
    Sketcher.Constraint("DistanceY", 3, 1, 1, 2, 9.399398),
    Sketcher.Constraint("Distance", 0, 2.001648),
    Sketcher.Constraint("Distance", 1, 9.92245),
    Sketcher.Constraint("Distance", 2, 1.390391),
    Sketcher.Constraint("DistanceX", -1, 1, 0, 2, 80.578491),
])
pad3 = body.newObject("PartDesign::Pad", "Pad002")
pad3.Profile = sketch9
pad3.Length = 23

# Sketch on XY plane
sketch10 = body.newObject("Sketcher::SketchObject", "Sketch009")
sketch10.AttachmentSupport = (doc.getObject("XY_Plane"), [""])
sketch10.MapMode = "FlatFace"
sketch10.AttachmentOffset = App.Placement(Vector(0, 0, -23), App.Rotation())
sketch10.addGeometry([
    Part.LineSegment(Vector(80.6, -55.8, 0), Vector(81.8, -54.2, 0)),  # 0
    Part.LineSegment(Vector(81.8, -54.2, 0), Vector(83.1, -55.6, 0)),  # 1
    Part.ArcOfCircle(Part.Circle(Vector(81.7, -55.9, 0), Vector(0, 0, 1), 1.4), math.radians(-79), math.radians(11)),  # 2
    Part.LineSegment(Vector(82, -57.2, 0), Vector(80.6, -55.8, 0)),  # 3
    Part.LineSegment(Vector(81.8, 54.2, 0), Vector(80.6, 55.8, 0)),  # 4
    Part.LineSegment(Vector(80.6, 55.8, 0), Vector(82, 57.2, 0)),  # 5
    Part.ArcOfCircle(Part.Circle(Vector(81.7, 55.8, 0), Vector(0, 0, 1), 1.4), math.radians(-11), math.radians(79)),  # 6
    Part.LineSegment(Vector(83.1, 55.6, 0), Vector(81.8, 54.2, 0)),  # 7
], False)
sketch10.addConstraint([
    Sketcher.Constraint("Coincident", 0, 2, 1, 1),
    Sketcher.Constraint("Coincident", 1, 2, 2, 2),
    Sketcher.Constraint("Coincident", 2, 1, 3, 1),
    Sketcher.Constraint("Coincident", 3, 2, 0, 1),
    Sketcher.Constraint("Coincident", 4, 2, 5, 1),
    Sketcher.Constraint("Coincident", 5, 2, 6, 2),
    Sketcher.Constraint("Coincident", 6, 1, 7, 1),
    Sketcher.Constraint("Coincident", 7, 2, 4, 1),
    Sketcher.Constraint("Symmetric", 3, 2, 4, 2, -1),
    Sketcher.Constraint("Symmetric", 2, 1, 5, 2, -1),
    Sketcher.Constraint("Symmetric", 0, 2, 7, 2, -1),
    Sketcher.Constraint("Perpendicular", 3, 5),
    Sketcher.Constraint("Perpendicular", 1, 7),
    Sketcher.Constraint("Radius", 2, 1.412238),
    Sketcher.Constraint("Radius", 6, 1.438372),
    Sketcher.Constraint("DistanceX", 6, 3, 1, 2, 1.392999),
    Sketcher.Constraint("DistanceY", 1, 2, 6, 3, 111.427801),
    Sketcher.Constraint("DistanceX", 0, 2, 6, 1, 1.373302),
    Sketcher.Constraint("Distance", 3, 2.001648),
    Sketcher.Constraint("DistanceY", -1, 1, 6, 3, 55.831591),
    Sketcher.Constraint("DistanceY", 0, 2, -1, 1, 54.217769),
    Sketcher.Constraint("DistanceX", -1, 1, 2, 1, 81.99387),
    Sketcher.Constraint("DistanceY", 2, 1, 2, 3, 1.387908),
])
pocket7 = body.newObject("PartDesign::Pocket", "Pocket006")
pocket7.Profile = sketch10
pocket7.Length = 20
pocket7.Reversed = True

doc.recompute()
